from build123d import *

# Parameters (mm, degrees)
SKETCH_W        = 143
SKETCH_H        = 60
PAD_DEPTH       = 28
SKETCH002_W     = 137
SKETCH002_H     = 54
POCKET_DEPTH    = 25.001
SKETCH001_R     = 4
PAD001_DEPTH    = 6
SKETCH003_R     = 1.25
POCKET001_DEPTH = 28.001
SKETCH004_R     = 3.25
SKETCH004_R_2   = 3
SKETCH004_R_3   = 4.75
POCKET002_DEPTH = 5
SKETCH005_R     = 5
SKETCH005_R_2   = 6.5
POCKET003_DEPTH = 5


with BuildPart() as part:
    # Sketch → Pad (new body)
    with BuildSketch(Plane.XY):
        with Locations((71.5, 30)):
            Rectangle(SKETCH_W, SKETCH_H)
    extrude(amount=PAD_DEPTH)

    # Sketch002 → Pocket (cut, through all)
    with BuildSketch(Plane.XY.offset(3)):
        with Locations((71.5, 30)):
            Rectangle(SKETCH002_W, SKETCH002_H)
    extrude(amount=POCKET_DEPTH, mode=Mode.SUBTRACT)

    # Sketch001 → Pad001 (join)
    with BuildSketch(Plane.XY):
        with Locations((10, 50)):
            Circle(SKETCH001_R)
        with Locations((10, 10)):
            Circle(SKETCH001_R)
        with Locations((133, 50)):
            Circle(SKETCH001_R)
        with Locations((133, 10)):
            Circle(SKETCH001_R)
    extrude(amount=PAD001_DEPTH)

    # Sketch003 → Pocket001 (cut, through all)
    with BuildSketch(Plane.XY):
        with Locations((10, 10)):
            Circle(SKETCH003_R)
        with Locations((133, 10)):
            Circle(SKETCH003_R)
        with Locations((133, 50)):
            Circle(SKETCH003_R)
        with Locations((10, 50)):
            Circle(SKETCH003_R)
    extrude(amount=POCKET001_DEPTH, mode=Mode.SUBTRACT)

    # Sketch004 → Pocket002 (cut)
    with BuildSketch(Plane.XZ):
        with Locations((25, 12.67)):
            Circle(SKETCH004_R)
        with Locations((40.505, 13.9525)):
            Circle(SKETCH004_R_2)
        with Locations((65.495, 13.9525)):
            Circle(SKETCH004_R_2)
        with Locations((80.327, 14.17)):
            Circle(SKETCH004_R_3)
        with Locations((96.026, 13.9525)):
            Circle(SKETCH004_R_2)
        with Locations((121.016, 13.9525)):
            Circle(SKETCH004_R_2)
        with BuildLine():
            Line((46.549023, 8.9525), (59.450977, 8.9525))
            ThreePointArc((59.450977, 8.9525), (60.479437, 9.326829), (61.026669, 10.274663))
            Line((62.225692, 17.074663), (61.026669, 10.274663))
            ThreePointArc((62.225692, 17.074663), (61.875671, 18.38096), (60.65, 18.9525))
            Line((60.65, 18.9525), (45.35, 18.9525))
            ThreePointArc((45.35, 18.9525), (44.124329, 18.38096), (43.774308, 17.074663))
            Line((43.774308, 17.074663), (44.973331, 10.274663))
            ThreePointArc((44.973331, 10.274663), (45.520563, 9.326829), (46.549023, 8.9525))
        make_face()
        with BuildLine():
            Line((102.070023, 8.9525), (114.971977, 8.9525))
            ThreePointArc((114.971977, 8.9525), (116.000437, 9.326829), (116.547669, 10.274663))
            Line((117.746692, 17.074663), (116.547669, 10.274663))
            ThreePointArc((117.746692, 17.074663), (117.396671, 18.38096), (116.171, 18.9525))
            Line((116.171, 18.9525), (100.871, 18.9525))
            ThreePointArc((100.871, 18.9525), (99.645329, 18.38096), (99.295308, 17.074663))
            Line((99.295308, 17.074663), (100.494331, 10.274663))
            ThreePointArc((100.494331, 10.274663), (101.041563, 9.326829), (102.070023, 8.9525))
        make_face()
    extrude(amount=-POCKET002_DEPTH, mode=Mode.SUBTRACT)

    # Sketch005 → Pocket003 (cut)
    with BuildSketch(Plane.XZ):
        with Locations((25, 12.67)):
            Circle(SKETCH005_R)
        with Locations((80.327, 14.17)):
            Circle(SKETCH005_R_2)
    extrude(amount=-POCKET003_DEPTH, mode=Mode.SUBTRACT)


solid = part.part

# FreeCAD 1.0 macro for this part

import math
import FreeCAD as App
import Part
import Sketcher
from FreeCAD import Vector
Q = App.Units.Quantity

doc = App.newDocument("Part")
body = doc.addObject("PartDesign::Body", "Body")

# Sketch on XY plane
sketch1 = body.newObject("Sketcher::SketchObject", "Sketch")
sketch1.AttachmentSupport = (doc.getObject("XY_Plane"), [""])
sketch1.MapMode = "FlatFace"
sketch1.addGeometry([
    Part.LineSegment(Vector(0, 60, 0), Vector(0, 0, 0)),
    Part.LineSegment(Vector(0, 0, 0), Vector(143, 0, 0)),
    Part.LineSegment(Vector(143, 0, 0), Vector(143, 60, 0)),
    Part.LineSegment(Vector(143, 60, 0), Vector(0, 60, 0)),
], False)
sketch1.addConstraint([
    Sketcher.Constraint("Coincident", 0, 2, 1, 1),
    Sketcher.Constraint("Coincident", 1, 2, 2, 1),
    Sketcher.Constraint("Coincident", 2, 2, 3, 1),
    Sketcher.Constraint("Coincident", 3, 2, 0, 1),
    Sketcher.Constraint("Vertical", 0),
    Sketcher.Constraint("Horizontal", 1),
    Sketcher.Constraint("Vertical", 2),
    Sketcher.Constraint("Horizontal", 3),
    Sketcher.Constraint("Coincident", 0, 2, -1, 1),
    Sketcher.Constraint("DistanceX", 1, 1, 1, 2, 143.0),
    Sketcher.Constraint("DistanceY", 0, 2, 0, 1, 60.0),
])
pad1 = body.newObject("PartDesign::Pad", "Pad")
pad1.Profile = sketch1
pad1.Length = 28

# Sketch on XY plane
sketch2 = body.newObject("Sketcher::SketchObject", "Sketch001")
sketch2.AttachmentSupport = (doc.getObject("XY_Plane"), [""])
sketch2.MapMode = "FlatFace"
sketch2.AttachmentOffset = App.Placement(Vector(0, 0, 3), App.Rotation())
sketch2.addGeometry([
    Part.LineSegment(Vector(3, 57, 0), Vector(3, 3, 0)),
    Part.LineSegment(Vector(3, 3, 0), Vector(140, 3, 0)),
    Part.LineSegment(Vector(140, 3, 0), Vector(140, 57, 0)),
    Part.LineSegment(Vector(140, 57, 0), Vector(3, 57, 0)),
], False)
sketch2.addConstraint([
    Sketcher.Constraint("Coincident", 0, 2, 1, 1),
    Sketcher.Constraint("Coincident", 1, 2, 2, 1),
    Sketcher.Constraint("Coincident", 2, 2, 3, 1),
    Sketcher.Constraint("Coincident", 3, 2, 0, 1),
    Sketcher.Constraint("Vertical", 0),
    Sketcher.Constraint("Horizontal", 1),
    Sketcher.Constraint("Vertical", 2),
    Sketcher.Constraint("Horizontal", 3),
    Sketcher.Constraint("DistanceX", 1, 1, 1, 2, 137.0),
    Sketcher.Constraint("DistanceY", 0, 2, 0, 1, 54.0),
    Sketcher.Constraint("DistanceX", -1, 1, 0, 2, 3.0),
    Sketcher.Constraint("DistanceY", -1, 1, 0, 2, 3.0),
])
pocket1 = body.newObject("PartDesign::Pocket", "Pocket")
pocket1.Profile = sketch2
pocket1.Type = "ThroughAll"
pocket1.Reversed = True

# Sketch on XY plane
sketch3 = body.newObject("Sketcher::SketchObject", "Sketch002")
sketch3.AttachmentSupport = (doc.getObject("XY_Plane"), [""])
sketch3.MapMode = "FlatFace"
sketch3.addGeometry([
    Part.Circle(Vector(10, 50, 0), Vector(0, 0, 1), 4),
    Part.Circle(Vector(10, 10, 0), Vector(0, 0, 1), 4),
    Part.Circle(Vector(133, 50, 0), Vector(0, 0, 1), 4),
    Part.Circle(Vector(133, 10, 0), Vector(0, 0, 1), 4),
], False)
sketch3.addConstraint([
    Sketcher.Constraint("Equal", 0, 1),
    Sketcher.Constraint("Equal", 1, 2),
    Sketcher.Constraint("Equal", 2, 3),
    Sketcher.Constraint("Horizontal", 0, 3, 2, 3),
    Sketcher.Constraint("Horizontal", 1, 3, 3, 3),
    Sketcher.Constraint("Vertical", 0, 3, 1, 3),
    Sketcher.Constraint("Vertical", 2, 3, 3, 3),
    Sketcher.Constraint("Diameter", 0, 8.0),
    Sketcher.Constraint("DistanceX", -1, 1, 0, 3, 10.0),
    Sketcher.Constraint("DistanceY", -1, 1, 0, 3, 50.0),
    Sketcher.Constraint("DistanceY", -1, 1, 1, 3, 10.0),
    Sketcher.Constraint("DistanceX", -1, 1, 2, 3, 133.0),
])
pad2 = body.newObject("PartDesign::Pad", "Pad001")
pad2.Profile = sketch3
pad2.Length = 6

# Sketch on XY plane
sketch4 = body.newObject("Sketcher::SketchObject", "Sketch003")
sketch4.AttachmentSupport = (doc.getObject("XY_Plane"), [""])
sketch4.MapMode = "FlatFace"
sketch4.addGeometry([
    Part.Circle(Vector(10, 10, 0), Vector(0, 0, 1), 1.25),
    Part.Circle(Vector(133, 10, 0), Vector(0, 0, 1), 1.25),
    Part.Circle(Vector(133, 50, 0), Vector(0, 0, 1), 1.25),
    Part.Circle(Vector(10, 50, 0), Vector(0, 0, 1), 1.25),
], False)
sketch4.addConstraint([
    Sketcher.Constraint("Equal", 0, 1),
    Sketcher.Constraint("Equal", 1, 2),
    Sketcher.Constraint("Equal", 2, 3),
    Sketcher.Constraint("Horizontal", 0, 3, 1, 3),
    Sketcher.Constraint("Horizontal", 2, 3, 3, 3),
    Sketcher.Constraint("Vertical", 1, 3, 2, 3),
    Sketcher.Constraint("Vertical", 0, 3, 3, 3),
    Sketcher.Constraint("Diameter", 0, 2.5),
    Sketcher.Constraint("DistanceX", -1, 1, 0, 3, 10.0),
    Sketcher.Constraint("DistanceY", -1, 1, 0, 3, 10.0),
    Sketcher.Constraint("DistanceX", -1, 1, 1, 3, 133.0),
    Sketcher.Constraint("DistanceY", -1, 1, 2, 3, 50.0),
])
pocket2 = body.newObject("PartDesign::Pocket", "Pocket001")
pocket2.Profile = sketch4
pocket2.Type = "ThroughAll"
pocket2.Reversed = True

# Sketch on XZ plane
sketch5 = body.newObject("Sketcher::SketchObject", "Sketch004")
sketch5.AttachmentSupport = (doc.getObject("XZ_Plane"), [""])
sketch5.MapMode = "FlatFace"
sketch5.addGeometry([
    Part.Circle(Vector(25, 12.67, 0), Vector(0, 0, 1), 3.25),  # 0
    Part.Circle(Vector(40.505, 13.9525, 0), Vector(0, 0, 1), 3),  # 1
    Part.Circle(Vector(65.495, 13.9525, 0), Vector(0, 0, 1), 3),  # 2
    Part.Circle(Vector(80.327, 14.17, 0), Vector(0, 0, 1), 4.75),  # 3
    Part.Circle(Vector(96.026, 13.9525, 0), Vector(0, 0, 1), 3),  # 4
    Part.Circle(Vector(121.016, 13.9525, 0), Vector(0, 0, 1), 3),  # 5
    Part.LineSegment(Vector(46.549023, 8.9525, 0), Vector(59.450977, 8.9525, 0)),  # 6
    Part.ArcOfCircle(Part.Circle(Vector(59.450977, 10.5525, 0), Vector(0, 0, 1), 1.6), math.radians(-89.999992), math.radians(-9.99999)),  # 7
    Part.LineSegment(Vector(61.026669, 10.274663, 0), Vector(62.225692, 17.074663, 0)),  # 8
    Part.ArcOfCircle(Part.Circle(Vector(60.65, 17.3525, 0), Vector(0, 0, 1), 1.6), math.radians(-10.000007), math.radians(89.999995)),  # 9
    Part.LineSegment(Vector(60.65, 18.9525, 0), Vector(45.35, 18.9525, 0)),  # 10
    Part.ArcOfCircle(Part.Circle(Vector(45.35, 17.3525, 0), Vector(0, 0, 1), 1.6), math.radians(90.000005), math.radians(190.000007)),  # 11
    Part.LineSegment(Vector(43.774308, 17.074663, 0), Vector(44.973331, 10.274663, 0)),  # 12
    Part.ArcOfCircle(Part.Circle(Vector(46.549023, 10.5525, 0), Vector(0, 0, 1), 1.6), math.radians(-170.00001), math.radians(-90.000008)),  # 13
    Part.LineSegment(Vector(102.070023, 8.9525, 0), Vector(114.971977, 8.9525, 0)),  # 14
    Part.ArcOfCircle(Part.Circle(Vector(114.971977, 10.5525, 0), Vector(0, 0, 1), 1.6), math.radians(-89.999992), math.radians(-9.99999)),  # 15
    Part.LineSegment(Vector(116.547669, 10.274663, 0), Vector(117.746692, 17.074663, 0)),  # 16
    Part.ArcOfCircle(Part.Circle(Vector(116.171, 17.3525, 0), Vector(0, 0, 1), 1.6), math.radians(-10.000007), math.radians(89.999995)),  # 17
    Part.LineSegment(Vector(116.171, 18.9525, 0), Vector(100.871, 18.9525, 0)),  # 18
    Part.ArcOfCircle(Part.Circle(Vector(100.871, 17.3525, 0), Vector(0, 0, 1), 1.6), math.radians(90.000005), math.radians(190.000007)),  # 19
    Part.LineSegment(Vector(99.295308, 17.074663, 0), Vector(100.494331, 10.274663, 0)),  # 20
    Part.ArcOfCircle(Part.Circle(Vector(102.070023, 10.5525, 0), Vector(0, 0, 1), 1.6), math.radians(-170.00001), math.radians(-90.000008)),  # 21
], False)
sketch5.addConstraint([
    Sketcher.Constraint("Tangent", 6, 2, 7, 1),
    Sketcher.Constraint("Tangent", 7, 2, 8, 1),
    Sketcher.Constraint("Tangent", 8, 2, 9, 1),
    Sketcher.Constraint("Tangent", 9, 2, 10, 1),
    Sketcher.Constraint("Tangent", 10, 2, 11, 1),
    Sketcher.Constraint("Tangent", 11, 2, 12, 1),
    Sketcher.Constraint("Tangent", 12, 2, 13, 1),
    Sketcher.Constraint("Tangent", 13, 2, 6, 1),
    Sketcher.Constraint("Tangent", 14, 2, 15, 1),
    Sketcher.Constraint("Tangent", 15, 2, 16, 1),
    Sketcher.Constraint("Tangent", 16, 2, 17, 1),
    Sketcher.Constraint("Tangent", 17, 2, 18, 1),
    Sketcher.Constraint("Tangent", 18, 2, 19, 1),
    Sketcher.Constraint("Tangent", 19, 2, 20, 1),
    Sketcher.Constraint("Tangent", 20, 2, 21, 1),
    Sketcher.Constraint("Tangent", 21, 2, 14, 1),
    Sketcher.Constraint("Horizontal", 6),
    Sketcher.Constraint("Horizontal", 10),
    Sketcher.Constraint("Horizontal", 14),
    Sketcher.Constraint("Horizontal", 18),
    Sketcher.Constraint("Equal", 1, 2),
    Sketcher.Constraint("Equal", 2, 4),
    Sketcher.Constraint("Equal", 4, 5),
    Sketcher.Constraint("Equal", 7, 9),
    Sketcher.Constraint("Equal", 9, 11),
    Sketcher.Constraint("Equal", 11, 13),
    Sketcher.Constraint("Equal", 13, 15),
    Sketcher.Constraint("Equal", 15, 17),
    Sketcher.Constraint("Equal", 17, 19),
    Sketcher.Constraint("Equal", 19, 21),
    Sketcher.Constraint("Parallel", 8, 16),
    Sketcher.Constraint("Parallel", 12, 20),
    Sketcher.Constraint("Horizontal", 1, 3, 2, 3),
    Sketcher.Constraint("Horizontal", 2, 3, 4, 3),
    Sketcher.Constraint("Horizontal", 4, 3, 5, 3),
    Sketcher.Constraint("Horizontal", 13, 3, 15, 3),
    Sketcher.Constraint("Horizontal", 11, 3, 17, 3),
    Sketcher.Constraint("Horizontal", 8, 2, 11, 2),
    Sketcher.Constraint("Equal", 6, 14),
    Sketcher.Constraint("Diameter", 1, 6.0),
    Sketcher.Constraint("Diameter", 0, 6.5),
    Sketcher.Constraint("Diameter", 3, 9.5),
    Sketcher.Constraint("Radius", 7, 1.6),
    Sketcher.Constraint("Angle", 8, Q("80.000004 deg")),
    Sketcher.Constraint("DistanceX", 10, 2, 10, 1, 15.3),
    Sketcher.Constraint("DistanceX", -1, 1, 0, 3, 25.0),
    Sketcher.Constraint("DistanceY", 6, 2, 2, 3, 5.0),
    Sketcher.Constraint("DistanceY", 2, 3, 9, 2, 5.0),
    Sketcher.Constraint("DistanceY", 0, 3, 3, 3, 1.5),
    Sketcher.Constraint("DistanceY", -1, 1, 0, 3, 12.67),
    Sketcher.Constraint("DistanceX", -1, 1, 9, 3, 60.65),
    Sketcher.Constraint("DistanceX", 1, 3, 2, 3, 24.99),
    Sketcher.Constraint("DistanceX", 4, 3, 5, 3, 24.99),
    Sketcher.Constraint("DistanceX", -1, 1, 1, 3, 40.505),
    Sketcher.Constraint("DistanceX", -1, 1, 3, 3, 80.327),
    Sketcher.Constraint("DistanceX", -1, 1, 4, 3, 96.026),
    Sketcher.Constraint("DistanceX", -1, 1, 17, 3, 116.171),
    Sketcher.Constraint("DistanceY", -1, 1, 1, 3, 13.9525),
])
pocket3 = body.newObject("PartDesign::Pocket", "Pocket002")
pocket3.Profile = sketch5
pocket3.Length = 5

# Sketch on XZ plane
sketch6 = body.newObject("Sketcher::SketchObject", "Sketch005")
sketch6.AttachmentSupport = (doc.getObject("XZ_Plane"), [""])
sketch6.MapMode = "FlatFace"
sketch6.addGeometry([
    Part.Circle(Vector(25, 12.67, 0), Vector(0, 0, 1), 5),
    Part.Circle(Vector(80.327, 14.17, 0), Vector(0, 0, 1), 6.5),
], False)
sketch6.addConstraint([
    Sketcher.Constraint("Diameter", 0, 10.0),
    Sketcher.Constraint("Diameter", 1, 13.0),
    Sketcher.Constraint("DistanceX", -1, 1, 0, 3, 25.0),
    Sketcher.Constraint("DistanceY", 0, 3, 1, 3, 1.5),
    Sketcher.Constraint("DistanceY", -1, 1, 0, 3, 12.67),
    Sketcher.Constraint("DistanceX", -1, 1, 1, 3, 80.327),
])
pocket4 = body.newObject("PartDesign::Pocket", "Pocket003")
pocket4.Profile = sketch6
pocket4.Length = 5

doc.recompute()
